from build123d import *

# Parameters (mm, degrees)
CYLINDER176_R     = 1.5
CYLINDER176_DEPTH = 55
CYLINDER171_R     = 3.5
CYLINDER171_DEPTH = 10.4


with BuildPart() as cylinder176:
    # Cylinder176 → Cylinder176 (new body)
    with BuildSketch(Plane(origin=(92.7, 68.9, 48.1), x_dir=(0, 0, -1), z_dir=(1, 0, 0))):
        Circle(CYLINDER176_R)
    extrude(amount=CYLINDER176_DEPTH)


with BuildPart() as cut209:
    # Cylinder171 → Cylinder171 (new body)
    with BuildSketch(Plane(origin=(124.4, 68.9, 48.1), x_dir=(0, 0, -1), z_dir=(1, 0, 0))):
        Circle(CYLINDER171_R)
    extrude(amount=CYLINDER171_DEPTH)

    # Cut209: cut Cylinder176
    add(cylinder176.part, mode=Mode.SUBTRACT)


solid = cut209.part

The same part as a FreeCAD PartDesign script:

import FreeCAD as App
import Part
import Sketcher
from FreeCAD import Vector

doc = App.newDocument("Part")
body = doc.addObject("PartDesign::Body", "Body")

# Sketch on YZ plane
sketch1 = doc.addObject("Sketcher::SketchObject", "Sketch")
body.addObject(sketch1)
sketch1.AttachmentSupport = (doc.YZ_Plane, [""])
sketch1.MapMode = "FlatFace"
sketch1.AttachmentOffset = App.Placement(Vector(0, 0, 92.7), App.Rotation())
sketch1.addGeometry(Part.Circle(Vector(68.9, 48.1, 0), Vector(0, 0, 1), 1.5), False)
sketch1.addConstraint([
    Sketcher.Constraint("Diameter", 0, 3.0),
    Sketcher.Constraint("DistanceX", -1, 1, 0, 3, 68.9),
    Sketcher.Constraint("DistanceY", -1, 1, 0, 3, 48.1),
])
pad1 = doc.addObject("PartDesign::Pad", "Pad")
body.addObject(pad1)
pad1.Profile = sketch1
pad1.Length = 55
body2 = doc.addObject("PartDesign::Body", "Body001")

# Sketch on YZ plane
sketch2 = doc.addObject("Sketcher::SketchObject", "Sketch001")
body2.addObject(sketch2)
sketch2.AttachmentSupport = (doc.getObject("YZ_Plane001"), [""])
sketch2.MapMode = "FlatFace"
sketch2.AttachmentOffset = App.Placement(Vector(0, 0, 124.4), App.Rotation())
sketch2.addGeometry(Part.Circle(Vector(68.9, 48.1, 0), Vector(0, 0, 1), 3.5), False)
sketch2.addConstraint([
    Sketcher.Constraint("Diameter", 0, 7.0),
    Sketcher.Constraint("DistanceX", -1, 1, 0, 3, 68.9),
    Sketcher.Constraint("DistanceY", -1, 1, 0, 3, 48.1),
])
pad2 = doc.addObject("PartDesign::Pad", "Pad001")
body2.addObject(pad2)
pad2.Profile = sketch2
pad2.Length = 10.4
doc.recompute()

boolean = doc.addObject("PartDesign::Boolean", "Boolean")
body2.addObject(boolean)
boolean.Type = "Cut"
boolean.addObjects([body])

doc.recompute()
